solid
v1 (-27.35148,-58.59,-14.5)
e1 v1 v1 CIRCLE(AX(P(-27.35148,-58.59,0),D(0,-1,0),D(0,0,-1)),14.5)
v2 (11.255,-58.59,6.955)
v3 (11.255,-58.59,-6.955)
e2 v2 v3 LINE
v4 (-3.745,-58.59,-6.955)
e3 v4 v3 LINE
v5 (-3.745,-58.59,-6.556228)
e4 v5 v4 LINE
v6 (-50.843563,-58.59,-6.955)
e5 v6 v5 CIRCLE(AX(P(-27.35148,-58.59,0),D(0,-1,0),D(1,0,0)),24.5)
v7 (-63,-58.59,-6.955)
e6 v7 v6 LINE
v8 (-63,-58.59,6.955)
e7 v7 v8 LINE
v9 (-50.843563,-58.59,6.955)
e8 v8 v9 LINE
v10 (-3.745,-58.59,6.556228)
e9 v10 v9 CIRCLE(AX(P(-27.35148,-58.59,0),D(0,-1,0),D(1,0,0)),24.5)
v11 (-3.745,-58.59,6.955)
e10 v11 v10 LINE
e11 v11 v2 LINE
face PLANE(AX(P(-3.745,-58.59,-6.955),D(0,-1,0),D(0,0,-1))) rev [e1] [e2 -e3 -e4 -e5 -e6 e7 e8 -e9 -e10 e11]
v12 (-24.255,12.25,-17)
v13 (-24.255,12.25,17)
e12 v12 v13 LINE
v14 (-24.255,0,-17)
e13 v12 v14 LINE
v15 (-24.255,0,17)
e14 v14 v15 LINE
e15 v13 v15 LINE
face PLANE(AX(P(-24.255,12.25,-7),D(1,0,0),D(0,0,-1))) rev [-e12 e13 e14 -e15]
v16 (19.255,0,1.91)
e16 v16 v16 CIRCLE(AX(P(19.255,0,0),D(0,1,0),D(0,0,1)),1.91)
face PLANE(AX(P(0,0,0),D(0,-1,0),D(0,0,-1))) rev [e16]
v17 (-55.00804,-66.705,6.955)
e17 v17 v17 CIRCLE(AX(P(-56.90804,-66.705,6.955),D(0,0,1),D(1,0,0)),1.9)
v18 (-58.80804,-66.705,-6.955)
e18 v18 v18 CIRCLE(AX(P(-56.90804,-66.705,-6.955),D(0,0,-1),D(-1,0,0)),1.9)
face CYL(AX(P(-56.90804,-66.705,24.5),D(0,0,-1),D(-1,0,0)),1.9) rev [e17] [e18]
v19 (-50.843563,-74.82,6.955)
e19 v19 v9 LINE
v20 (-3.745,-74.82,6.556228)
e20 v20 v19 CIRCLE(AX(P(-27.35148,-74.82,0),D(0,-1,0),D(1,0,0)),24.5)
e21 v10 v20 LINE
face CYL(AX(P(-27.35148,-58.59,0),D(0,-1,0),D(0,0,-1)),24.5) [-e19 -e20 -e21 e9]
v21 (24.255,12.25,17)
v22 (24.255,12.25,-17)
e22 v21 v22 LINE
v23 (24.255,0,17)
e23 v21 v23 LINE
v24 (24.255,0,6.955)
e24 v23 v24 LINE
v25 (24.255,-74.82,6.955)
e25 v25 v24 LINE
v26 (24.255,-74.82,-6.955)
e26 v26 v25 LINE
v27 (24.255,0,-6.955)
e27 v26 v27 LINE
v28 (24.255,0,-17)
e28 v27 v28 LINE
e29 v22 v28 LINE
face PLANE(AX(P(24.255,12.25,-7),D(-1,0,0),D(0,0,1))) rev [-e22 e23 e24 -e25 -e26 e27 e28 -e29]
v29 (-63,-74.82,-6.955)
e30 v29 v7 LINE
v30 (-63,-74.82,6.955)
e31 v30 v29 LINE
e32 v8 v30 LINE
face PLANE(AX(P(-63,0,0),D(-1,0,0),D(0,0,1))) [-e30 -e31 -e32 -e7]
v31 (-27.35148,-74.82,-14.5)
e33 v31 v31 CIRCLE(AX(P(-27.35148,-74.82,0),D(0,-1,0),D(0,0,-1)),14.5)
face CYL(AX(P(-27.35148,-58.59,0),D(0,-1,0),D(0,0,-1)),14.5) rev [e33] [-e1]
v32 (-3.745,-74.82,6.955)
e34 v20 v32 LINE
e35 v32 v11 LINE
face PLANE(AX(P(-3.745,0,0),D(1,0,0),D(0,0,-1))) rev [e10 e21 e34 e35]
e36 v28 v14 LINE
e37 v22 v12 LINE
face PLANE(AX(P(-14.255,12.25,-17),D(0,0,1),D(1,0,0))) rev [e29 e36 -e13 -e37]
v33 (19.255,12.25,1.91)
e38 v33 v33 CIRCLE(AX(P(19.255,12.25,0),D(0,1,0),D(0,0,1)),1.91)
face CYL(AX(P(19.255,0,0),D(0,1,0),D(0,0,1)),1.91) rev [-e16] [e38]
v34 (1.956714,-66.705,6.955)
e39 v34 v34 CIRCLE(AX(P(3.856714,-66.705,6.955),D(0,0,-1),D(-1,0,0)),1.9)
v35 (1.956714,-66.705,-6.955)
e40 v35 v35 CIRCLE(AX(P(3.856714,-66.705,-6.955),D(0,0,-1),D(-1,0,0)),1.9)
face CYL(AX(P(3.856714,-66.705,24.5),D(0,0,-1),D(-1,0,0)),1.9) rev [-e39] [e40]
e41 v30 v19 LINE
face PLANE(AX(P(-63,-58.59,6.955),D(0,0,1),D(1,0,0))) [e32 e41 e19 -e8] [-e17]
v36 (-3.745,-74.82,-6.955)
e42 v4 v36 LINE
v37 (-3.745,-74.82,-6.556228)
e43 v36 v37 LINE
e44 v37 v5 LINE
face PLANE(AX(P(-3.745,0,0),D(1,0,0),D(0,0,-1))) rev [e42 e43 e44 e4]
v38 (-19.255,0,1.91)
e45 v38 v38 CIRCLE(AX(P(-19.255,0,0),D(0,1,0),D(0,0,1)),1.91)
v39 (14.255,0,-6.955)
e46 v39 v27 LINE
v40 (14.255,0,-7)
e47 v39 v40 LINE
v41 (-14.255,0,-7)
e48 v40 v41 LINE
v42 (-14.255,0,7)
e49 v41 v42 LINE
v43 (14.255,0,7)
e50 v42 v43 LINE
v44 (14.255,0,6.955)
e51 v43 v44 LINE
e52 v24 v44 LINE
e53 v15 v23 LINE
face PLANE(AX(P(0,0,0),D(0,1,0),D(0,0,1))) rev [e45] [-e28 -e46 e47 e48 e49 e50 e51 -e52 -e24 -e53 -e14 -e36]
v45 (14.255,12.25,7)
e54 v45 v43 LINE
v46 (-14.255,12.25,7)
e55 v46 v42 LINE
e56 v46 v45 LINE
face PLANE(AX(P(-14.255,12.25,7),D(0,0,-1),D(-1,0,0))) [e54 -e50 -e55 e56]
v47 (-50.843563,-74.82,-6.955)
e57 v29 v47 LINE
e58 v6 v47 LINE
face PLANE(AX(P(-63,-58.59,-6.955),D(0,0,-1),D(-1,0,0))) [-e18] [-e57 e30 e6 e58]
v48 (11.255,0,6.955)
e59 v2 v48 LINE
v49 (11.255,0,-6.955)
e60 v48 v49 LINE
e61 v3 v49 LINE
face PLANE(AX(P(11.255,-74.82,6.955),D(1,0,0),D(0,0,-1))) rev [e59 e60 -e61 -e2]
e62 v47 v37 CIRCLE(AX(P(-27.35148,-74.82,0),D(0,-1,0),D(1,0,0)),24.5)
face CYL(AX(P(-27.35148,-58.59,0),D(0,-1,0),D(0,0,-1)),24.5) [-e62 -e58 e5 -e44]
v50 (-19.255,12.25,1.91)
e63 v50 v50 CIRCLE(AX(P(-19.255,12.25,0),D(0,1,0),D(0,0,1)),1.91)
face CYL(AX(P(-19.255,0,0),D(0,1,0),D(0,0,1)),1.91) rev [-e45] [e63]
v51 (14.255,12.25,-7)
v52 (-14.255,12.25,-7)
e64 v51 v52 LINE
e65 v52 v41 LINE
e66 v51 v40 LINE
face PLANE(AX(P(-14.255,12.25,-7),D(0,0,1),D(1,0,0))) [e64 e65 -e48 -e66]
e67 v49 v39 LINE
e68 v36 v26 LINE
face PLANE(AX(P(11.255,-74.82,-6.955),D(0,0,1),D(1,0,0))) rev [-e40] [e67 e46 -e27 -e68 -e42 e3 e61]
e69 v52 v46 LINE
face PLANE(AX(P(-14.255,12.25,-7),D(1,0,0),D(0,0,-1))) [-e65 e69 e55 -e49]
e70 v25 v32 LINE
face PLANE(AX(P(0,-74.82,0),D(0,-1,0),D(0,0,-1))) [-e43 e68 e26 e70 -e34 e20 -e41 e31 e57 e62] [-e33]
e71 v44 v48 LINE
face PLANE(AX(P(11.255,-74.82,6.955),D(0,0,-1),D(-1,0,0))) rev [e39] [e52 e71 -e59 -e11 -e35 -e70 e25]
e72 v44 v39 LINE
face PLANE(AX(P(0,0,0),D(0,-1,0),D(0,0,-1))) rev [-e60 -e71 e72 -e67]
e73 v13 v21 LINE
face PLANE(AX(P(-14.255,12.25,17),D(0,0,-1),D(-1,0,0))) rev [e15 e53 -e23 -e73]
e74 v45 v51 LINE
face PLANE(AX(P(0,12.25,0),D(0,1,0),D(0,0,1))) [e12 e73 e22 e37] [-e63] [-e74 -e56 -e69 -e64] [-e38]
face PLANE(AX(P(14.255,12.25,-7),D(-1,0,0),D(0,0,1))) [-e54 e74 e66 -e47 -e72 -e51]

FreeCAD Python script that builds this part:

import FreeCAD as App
import Part
import Sketcher
from FreeCAD import Vector


def add_polygon(sketch, points):
    """Adds a closed chain of lines whose ends are joined by coincident constraints."""
    first, n = sketch.GeometryCount, len(points)
    for a, b in zip(points, points[1:] + points[:1]):
        sketch.addGeometry(Part.LineSegment(App.Vector(*a, 0), App.Vector(*b, 0)), False)
    for i in range(n):
        sketch.addConstraint(Sketcher.Constraint("Coincident", first + i, 2, first + (i + 1) % n, 1))

doc = App.newDocument("Part")
body = doc.addObject("PartDesign::Body", "Body")

# Sketch on XZ plane
sketch1 = body.newObject("Sketcher::SketchObject", "Sketch")
sketch1.AttachmentSupport = (doc.getObject("XZ_Plane"), [""])
sketch1.MapMode = "FlatFace"
add_polygon(sketch1, [(-24, -17), (-24, 17), (24, 17), (24, -17)])  # lines 0-3
add_polygon(sketch1, [(14, 7), (-14, 7), (-14, -7), (14, -7)])  # lines 4-7
sketch1.addConstraint([
    Sketcher.Constraint("Vertical", 0),
    Sketcher.Constraint("Horizontal", 1),
    Sketcher.Constraint("Vertical", 2),
    Sketcher.Constraint("Horizontal", 3),
    Sketcher.Constraint("Horizontal", 4),
    Sketcher.Constraint("Vertical", 5),
    Sketcher.Constraint("Horizontal", 6),
    Sketcher.Constraint("Vertical", 7),
    Sketcher.Constraint("Symmetric", 0, 2, 2, 2, -1, 1),
    Sketcher.Constraint("Symmetric", 4, 2, 6, 2, -1, 1),
    Sketcher.Constraint("DistanceY", 0, 1, 0, 2, 34.0),
    Sketcher.Constraint("DistanceY", 5, 2, 5, 1, 14.0),
    Sketcher.Constraint("DistanceX", 0, 2, 4, 2, 10.0),
    Sketcher.Constraint("DistanceX", 1, 1, 1, 2, 48.51),
])
pad1 = body.newObject("PartDesign::Pad", "Pad")
pad1.Profile = sketch1
pad1.Length = 12.25
pad1.Reversed = True

# Sketch on XZ plane
sketch2 = body.newObject("Sketcher::SketchObject", "Sketch001")
sketch2.AttachmentSupport = (doc.getObject("XZ_Plane"), [""])
sketch2.MapMode = "FlatFace"
sketch2.AttachmentOffset = App.Placement(Vector(0, 0, -12.25), App.Rotation())
sketch2.addGeometry([
    Part.Circle(Vector(-19.3, 0, 0), Vector(0, 0, 1), 1.9),
    Part.Circle(Vector(19.3, 0, 0), Vector(0, 0, 1), 1.9),
], False)
sketch2.addConstraint([
    Sketcher.Constraint("Equal", 0, 1),
    Sketcher.Constraint("Symmetric", 0, 3, 1, 3, -1, 1),
    Sketcher.Constraint("PointOnObject", 0, 3, -1),
    Sketcher.Constraint("Diameter", 0, 3.82),
    Sketcher.Constraint("DistanceX", 0, 3, 1, 3, 38.51),
])
pocket1 = body.newObject("PartDesign::Pocket", "Pocket")
pocket1.Profile = sketch2
pocket1.Type = "ThroughAll"
pocket1.Reversed = True

# Sketch on XZ plane
sketch3 = body.newObject("Sketcher::SketchObject", "Sketch002")
sketch3.AttachmentSupport = (doc.getObject("XZ_Plane"), [""])
sketch3.MapMode = "FlatFace"
add_polygon(sketch3, [(11, 7), (11, -7), (24, -7), (24, 7)])  # lines 0-3
sketch3.addConstraint([
    Sketcher.Constraint("Vertical", 0),
    Sketcher.Constraint("Horizontal", 1),
    Sketcher.Constraint("Vertical", 2),
    Sketcher.Constraint("Horizontal", 3),
    Sketcher.Constraint("DistanceX", 1, 1, 1, 2, 13.0),
    Sketcher.Constraint("DistanceY", 0, 2, 0, 1, 13.91),
    Sketcher.Constraint("DistanceX", -1, 1, 0, 2, 11.255),
    Sketcher.Constraint("DistanceY", 0, 2, -1, 1, 6.955),
])
pad2 = body.newObject("PartDesign::Pad", "Pad001")
pad2.Profile = sketch3
pad2.Length = 74.82

# Sketch on YZ plane
sketch4 = body.newObject("Sketcher::SketchObject", "Sketch003")
sketch4.AttachmentSupport = (doc.getObject("YZ_Plane"), [""])
sketch4.MapMode = "FlatFace"
sketch4.AttachmentOffset = App.Placement(Vector(0, 0, 11.255), App.Rotation())
add_polygon(sketch4, [(-59, -7), (-75, -7), (-75, 7), (-59, 7)])  # lines 0-3
sketch4.addConstraint([
    Sketcher.Constraint("Horizontal", 0),
    Sketcher.Constraint("Vertical", 1),
    Sketcher.Constraint("Horizontal", 2),
    Sketcher.Constraint("Vertical", 3),
    Sketcher.Constraint("DistanceX", 0, 2, 0, 1, 16.23),
    Sketcher.Constraint("DistanceY", 1, 1, 1, 2, 13.91),
    Sketcher.Constraint("DistanceX", 0, 2, -1, 1, 74.82),
    Sketcher.Constraint("DistanceY", 0, 2, -1, 1, 6.955),
])
pad3 = body.newObject("PartDesign::Pad", "Pad002")
pad3.Profile = sketch4
pad3.Length = 15
pad3.Reversed = True

# Sketch on XZ plane
sketch5 = body.newObject("Sketcher::SketchObject", "Sketch004")
sketch5.AttachmentSupport = (doc.getObject("XZ_Plane"), [""])
sketch5.MapMode = "FlatFace"
sketch5.AttachmentOffset = App.Placement(Vector(0, 0, 74.82), App.Rotation())
sketch5.addGeometry([
    Part.Circle(Vector(-27, 0, 0), Vector(0, 0, 1), 24),
    Part.Circle(Vector(-27, 0, 0), Vector(0, 0, 1), 14),
], False)
sketch5.addConstraint([
    Sketcher.Constraint("Coincident", 1, 3, 0, 3),
    Sketcher.Constraint("PointOnObject", 0, 3, -1),
    Sketcher.Constraint("Diameter", 0, 49.0),
    Sketcher.Constraint("Diameter", 1, 29.0),
    Sketcher.Constraint("DistanceX", 0, 3, -1, 1, 27.35148),
])
pad4 = body.newObject("PartDesign::Pad", "Pad003")
pad4.Profile = sketch5
pad4.Length = 16.23
pad4.Reversed = True

# Sketch on XY plane
sketch6 = body.newObject("Sketcher::SketchObject", "Sketch005")
sketch6.AttachmentSupport = (doc.getObject("XY_Plane"), [""])
sketch6.MapMode = "FlatFace"
sketch6.AttachmentOffset = App.Placement(Vector(0, 0, -6.955), App.Rotation())
sketch6.addGeometry(Part.Circle(Vector(3.9, -66.7, 0), Vector(0, 0, 1), 1.9), False)
sketch6.addConstraint([
    Sketcher.Constraint("Diameter", 0, 3.8),
    Sketcher.Constraint("DistanceY", 0, 3, -1, 1, 66.705),
    Sketcher.Constraint("DistanceX", -1, 1, 0, 3, 3.856714),
])
pocket2 = body.newObject("PartDesign::Pocket", "Pocket001")
pocket2.Profile = sketch6
pocket2.Type = "ThroughAll"
pocket2.Reversed = True

# Sketch on YZ plane
sketch7 = body.newObject("Sketcher::SketchObject", "Sketch006")
sketch7.AttachmentSupport = (doc.getObject("YZ_Plane"), [""])
sketch7.MapMode = "FlatFace"
sketch7.AttachmentOffset = App.Placement(Vector(0, 0, -55), App.Rotation())
add_polygon(sketch7, [(-59, 7), (-75, 7), (-75, -7), (-59, -7)])  # lines 0-3
sketch7.addConstraint([
    Sketcher.Constraint("Horizontal", 0),
    Sketcher.Constraint("Vertical", 1),
    Sketcher.Constraint("Horizontal", 2),
    Sketcher.Constraint("Vertical", 3),
    Sketcher.Constraint("DistanceX", 0, 2, 0, 1, 16.23),
    Sketcher.Constraint("DistanceY", 1, 2, 1, 1, 13.91),
    Sketcher.Constraint("DistanceX", 0, 2, -1, 1, 74.82),
    Sketcher.Constraint("DistanceY", -1, 1, 0, 2, 6.955),
])
pad5 = body.newObject("PartDesign::Pad", "Pad004")
pad5.Profile = sketch7
pad5.Type = "TwoLengths"
pad5.Length = 10
pad5.Length2 = 8

# Sketch on XY plane
sketch8 = body.newObject("Sketcher::SketchObject", "Sketch007")
sketch8.AttachmentSupport = (doc.getObject("XY_Plane"), [""])
sketch8.MapMode = "FlatFace"
sketch8.AttachmentOffset = App.Placement(Vector(0, 0, -6.955), App.Rotation())
sketch8.addGeometry(Part.Circle(Vector(-56.9, -66.7, 0), Vector(0, 0, 1), 1.9), False)
sketch8.addConstraint([
    Sketcher.Constraint("Diameter", 0, 3.8),
    Sketcher.Constraint("DistanceY", 0, 3, -1, 1, 66.705),
    Sketcher.Constraint("DistanceX", 0, 3, -1, 1, 56.90804),
])
pocket3 = body.newObject("PartDesign::Pocket", "Pocket002")
pocket3.Profile = sketch8
pocket3.Type = "ThroughAll"
pocket3.Reversed = True

doc.recompute()
